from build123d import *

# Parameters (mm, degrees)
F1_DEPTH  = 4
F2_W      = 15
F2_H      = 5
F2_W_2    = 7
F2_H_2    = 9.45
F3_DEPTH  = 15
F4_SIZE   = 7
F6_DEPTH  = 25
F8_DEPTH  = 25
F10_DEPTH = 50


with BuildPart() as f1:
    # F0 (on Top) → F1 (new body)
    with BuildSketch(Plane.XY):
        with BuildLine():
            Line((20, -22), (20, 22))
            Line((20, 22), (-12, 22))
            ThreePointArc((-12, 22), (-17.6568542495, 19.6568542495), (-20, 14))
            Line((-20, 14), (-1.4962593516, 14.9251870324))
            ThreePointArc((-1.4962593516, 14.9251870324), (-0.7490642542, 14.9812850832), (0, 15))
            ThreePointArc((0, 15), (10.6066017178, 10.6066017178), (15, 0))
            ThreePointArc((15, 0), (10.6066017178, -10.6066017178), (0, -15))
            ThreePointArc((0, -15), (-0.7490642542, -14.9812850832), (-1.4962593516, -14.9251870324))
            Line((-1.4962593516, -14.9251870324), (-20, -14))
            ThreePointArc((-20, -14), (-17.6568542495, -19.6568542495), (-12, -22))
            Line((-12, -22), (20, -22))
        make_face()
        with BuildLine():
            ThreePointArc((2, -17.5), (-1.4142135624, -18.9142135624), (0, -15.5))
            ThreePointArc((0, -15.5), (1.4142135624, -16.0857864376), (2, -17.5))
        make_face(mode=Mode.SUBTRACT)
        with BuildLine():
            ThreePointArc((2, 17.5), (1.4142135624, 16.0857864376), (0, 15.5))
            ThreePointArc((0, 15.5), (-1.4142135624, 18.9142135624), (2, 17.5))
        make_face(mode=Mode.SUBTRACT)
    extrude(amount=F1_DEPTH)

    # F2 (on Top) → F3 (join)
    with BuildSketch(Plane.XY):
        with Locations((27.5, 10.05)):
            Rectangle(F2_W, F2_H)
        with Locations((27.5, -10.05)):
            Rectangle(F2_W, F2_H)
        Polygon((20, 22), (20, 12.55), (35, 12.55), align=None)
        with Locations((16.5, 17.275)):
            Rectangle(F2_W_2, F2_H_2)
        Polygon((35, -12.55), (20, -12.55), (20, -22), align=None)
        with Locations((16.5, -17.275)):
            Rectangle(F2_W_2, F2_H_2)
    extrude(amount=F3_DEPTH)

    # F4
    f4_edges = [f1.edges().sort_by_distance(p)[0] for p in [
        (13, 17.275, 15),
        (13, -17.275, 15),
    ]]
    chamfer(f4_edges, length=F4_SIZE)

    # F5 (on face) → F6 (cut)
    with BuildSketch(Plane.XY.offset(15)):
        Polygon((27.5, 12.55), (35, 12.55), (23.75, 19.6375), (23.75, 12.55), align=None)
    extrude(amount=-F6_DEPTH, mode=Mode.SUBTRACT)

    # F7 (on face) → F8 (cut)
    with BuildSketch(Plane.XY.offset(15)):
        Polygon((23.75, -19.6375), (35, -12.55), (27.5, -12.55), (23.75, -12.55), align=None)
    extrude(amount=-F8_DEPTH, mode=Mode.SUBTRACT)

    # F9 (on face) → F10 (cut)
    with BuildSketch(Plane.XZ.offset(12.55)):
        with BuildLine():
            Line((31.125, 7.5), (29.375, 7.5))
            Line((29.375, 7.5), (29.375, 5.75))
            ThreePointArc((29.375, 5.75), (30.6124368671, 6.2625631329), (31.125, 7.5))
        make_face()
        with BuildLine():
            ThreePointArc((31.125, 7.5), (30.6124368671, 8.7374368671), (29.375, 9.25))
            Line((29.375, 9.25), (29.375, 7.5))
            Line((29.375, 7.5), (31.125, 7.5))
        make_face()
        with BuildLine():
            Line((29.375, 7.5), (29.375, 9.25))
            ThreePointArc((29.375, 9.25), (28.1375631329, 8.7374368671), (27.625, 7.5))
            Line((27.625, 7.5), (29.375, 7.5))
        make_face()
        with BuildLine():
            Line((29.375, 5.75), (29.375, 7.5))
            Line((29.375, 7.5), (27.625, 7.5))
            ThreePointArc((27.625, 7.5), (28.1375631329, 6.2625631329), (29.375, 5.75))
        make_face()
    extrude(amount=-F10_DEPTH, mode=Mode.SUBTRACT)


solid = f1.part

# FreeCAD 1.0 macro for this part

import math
import FreeCAD as App
import Part
import Sketcher


def edges_at(feature, points):
    """Names of the edges that pass closest to the given points."""
    edges = feature.Shape.Edges
    near = lambda p: min(range(len(edges)), key=lambda i: edges[i].distToShape(Part.Vertex(*p))[0])
    return sorted({f"Edge{near(p) + 1}" for p in points})

doc = App.newDocument("Part")
body = doc.addObject("PartDesign::Body", "Body")

sketch1 = doc.addObject("Sketcher::SketchObject", "Sketch")
body.addObject(sketch1)
sketch1.AttachmentSupport = (doc.XY_Plane, [""])
sketch1.MapMode = "FlatFace"
sketch1.addGeometry([
    Part.LineSegment(App.Vector(20, -22, 0), App.Vector(20, 22, 0)),
    Part.LineSegment(App.Vector(20, 22, 0), App.Vector(-12, 22, 0)),
    Part.ArcOfCircle(Part.Circle(App.Vector(-12, 14, 0), App.Vector(0, 0, 1), 8), math.radians(90), math.radians(180)),
    Part.LineSegment(App.Vector(-20, 14, 0), App.Vector(-1.5, 14.9, 0)),
    Part.ArcOfCircle(Part.Circle(App.Vector(0, 0, 0), App.Vector(0, 0, 1), 15), math.radians(90), math.radians(95.72)),
    Part.ArcOfCircle(Part.Circle(App.Vector(0, 0, 0), App.Vector(0, 0, 1), 15), math.radians(-90), math.radians(90)),
    Part.ArcOfCircle(Part.Circle(App.Vector(0, 0, 0), App.Vector(0, 0, 1), 15), math.radians(-95.72), math.radians(-90)),
    Part.LineSegment(App.Vector(-1.5, -14.9, 0), App.Vector(-20, -14, 0)),
    Part.ArcOfCircle(Part.Circle(App.Vector(-12, -14, 0), App.Vector(0, 0, 1), 8), math.radians(180), math.radians(270)),
    Part.LineSegment(App.Vector(-12, -22, 0), App.Vector(20, -22, 0)),
    Part.ArcOfCircle(Part.Circle(App.Vector(0, -17.5, 0), App.Vector(0, 0, 1), 2), math.radians(0), math.radians(90)),
    Part.ArcOfCircle(Part.Circle(App.Vector(0, -17.5, 0), App.Vector(0, 0, 1), 2), math.radians(90), math.radians(360)),
    Part.ArcOfCircle(Part.Circle(App.Vector(0, 17.5, 0), App.Vector(0, 0, 1), 2), math.radians(0), math.radians(270)),
    Part.ArcOfCircle(Part.Circle(App.Vector(0, 17.5, 0), App.Vector(0, 0, 1), 2), math.radians(-90), math.radians(0)),
], False)
sketch1.addConstraint([
    Sketcher.Constraint("Coincident", 0, 2, 1, 1),
    Sketcher.Constraint("Tangent", 1, 2, 2, 1),
    Sketcher.Constraint("Coincident", 2, 2, 3, 1),
    Sketcher.Constraint("Coincident", 3, 2, 4, 2),
    Sketcher.Constraint("Tangent", 4, 1, 5, 2),
    Sketcher.Constraint("Tangent", 5, 1, 6, 2),
    Sketcher.Constraint("Coincident", 6, 1, 7, 1),
    Sketcher.Constraint("Coincident", 7, 2, 8, 1),
    Sketcher.Constraint("Tangent", 8, 2, 9, 1),
    Sketcher.Constraint("Coincident", 9, 2, 0, 1),
    Sketcher.Constraint("Tangent", 10, 1, 11, 2),
    Sketcher.Constraint("Coincident", 11, 1, 10, 2),
    Sketcher.Constraint("Tangent", 12, 1, 13, 2),
    Sketcher.Constraint("Coincident", 13, 1, 12, 2),
    Sketcher.Constraint("Vertical", 0),
    Sketcher.Constraint("Horizontal", 1),
    Sketcher.Constraint("Horizontal", 9),
    Sketcher.Constraint("Coincident", 4, 3, -1, 1),
    Sketcher.Constraint("Equal", 4, 5),
    Sketcher.Constraint("Equal", 5, 6),
    Sketcher.Constraint("Equal", 2, 8),
    Sketcher.Constraint("Equal", 11, 12),
    Sketcher.Constraint("Symmetric", 10, 3, 12, 3, -1, 1),
    Sketcher.Constraint("Symmetric", 2, 3, 8, 3, -1),
    Sketcher.Constraint("Symmetric", 10, 1, 12, 1, -1),
    Sketcher.Constraint("PointOnObject", 4, 1, -2),
    Sketcher.Constraint("PointOnObject", 5, 1, -2),
    Sketcher.Constraint("PointOnObject", 11, 1, -2),
    Sketcher.Constraint("PointOnObject", 13, 1, -2),
    Sketcher.Constraint("Horizontal", 8, 3, 7, 2),
    Sketcher.Constraint("Horizontal", 11, 3, 10, 1),
    Sketcher.Constraint("Vertical", 3, 2, 6, 1),
    Sketcher.Constraint("Equal", 3, 7),
    Sketcher.Constraint("Radius", 2, 8.0),
    Sketcher.Constraint("Radius", 4, 15.0),
    Sketcher.Constraint("Radius", 10, 2.0),
    Sketcher.Constraint("DistanceX", 1, 2, 1, 1, 32.0),
    Sketcher.Constraint("DistanceY", 0, 1, 0, 2, 44.0),
    Sketcher.Constraint("DistanceX", 2, 3, -1, 1, 12.0),
    Sketcher.Constraint("DistanceY", 10, 3, -1, 1, 17.5),
    Sketcher.Constraint("DistanceX", 3, 2, -1, 1, 1.496259),
])
pad1 = doc.addObject("PartDesign::Pad", "Pad")
body.addObject(pad1)
pad1.Profile = sketch1
pad1.Length = 4

sketch2 = doc.addObject("Sketcher::SketchObject", "Sketch001")
body.addObject(sketch2)
sketch2.AttachmentSupport = (doc.XY_Plane, [""])
sketch2.MapMode = "FlatFace"
sketch2.addGeometry([
    Part.LineSegment(App.Vector(20, 8, 0), App.Vector(35, 8, 0)),
    Part.LineSegment(App.Vector(35, 8, 0), App.Vector(35, 13, 0)),
    Part.LineSegment(App.Vector(35, 13, 0), App.Vector(20, 22, 0)),
    Part.LineSegment(App.Vector(20, 22, 0), App.Vector(13, 22, 0)),
    Part.LineSegment(App.Vector(13, 22, 0), App.Vector(13, 13, 0)),
    Part.LineSegment(App.Vector(13, 13, 0), App.Vector(20, 13, 0)),
    Part.LineSegment(App.Vector(20, 13, 0), App.Vector(20, 8, 0)),
    Part.LineSegment(App.Vector(20, -8, 0), App.Vector(20, -13, 0)),
    Part.LineSegment(App.Vector(20, -13, 0), App.Vector(13, -13, 0)),
    Part.LineSegment(App.Vector(13, -13, 0), App.Vector(13, -22, 0)),
    Part.LineSegment(App.Vector(13, -22, 0), App.Vector(20, -22, 0)),
    Part.LineSegment(App.Vector(20, -22, 0), App.Vector(35, -13, 0)),
    Part.LineSegment(App.Vector(35, -13, 0), App.Vector(35, -8, 0)),
    Part.LineSegment(App.Vector(35, -8, 0), App.Vector(20, -8, 0)),
], False)
sketch2.addConstraint([
    Sketcher.Constraint("Coincident", 0, 2, 1, 1),
    Sketcher.Constraint("Coincident", 1, 2, 2, 1),
    Sketcher.Constraint("Coincident", 2, 2, 3, 1),
    Sketcher.Constraint("Coincident", 3, 2, 4, 1),
    Sketcher.Constraint("Coincident", 4, 2, 5, 1),
    Sketcher.Constraint("Coincident", 5, 2, 6, 1),
    Sketcher.Constraint("Coincident", 6, 2, 0, 1),
    Sketcher.Constraint("Coincident", 7, 2, 8, 1),
    Sketcher.Constraint("Coincident", 8, 2, 9, 1),
    Sketcher.Constraint("Coincident", 9, 2, 10, 1),
    Sketcher.Constraint("Coincident", 10, 2, 11, 1),
    Sketcher.Constraint("Coincident", 11, 2, 12, 1),
    Sketcher.Constraint("Coincident", 12, 2, 13, 1),
    Sketcher.Constraint("Coincident", 13, 2, 7, 1),
    Sketcher.Constraint("Horizontal", 0),
    Sketcher.Constraint("Vertical", 1),
    Sketcher.Constraint("Horizontal", 3),
    Sketcher.Constraint("Vertical", 4),
    Sketcher.Constraint("Horizontal", 5),
    Sketcher.Constraint("Vertical", 6),
    Sketcher.Constraint("Vertical", 7),
    Sketcher.Constraint("Horizontal", 8),
    Sketcher.Constraint("Vertical", 9),
    Sketcher.Constraint("Horizontal", 10),
    Sketcher.Constraint("Vertical", 12),
    Sketcher.Constraint("Horizontal", 13),
    Sketcher.Constraint("Symmetric", 5, 2, 7, 2, -1),
    Sketcher.Constraint("Symmetric", 3, 2, 9, 2, -1),
    Sketcher.Constraint("Symmetric", 1, 2, 11, 2, -1),
    Sketcher.Constraint("Horizontal", 1, 2, 4, 2),
    Sketcher.Constraint("Vertical", 2, 2, 5, 2),
    Sketcher.Constraint("Vertical", 7, 2, 10, 2),
    Sketcher.Constraint("Equal", 6, 7),
    Sketcher.Constraint("DistanceX", 0, 1, 0, 2, 15.0),
    Sketcher.Constraint("DistanceX", 3, 2, 3, 1, 7.0),
    Sketcher.Constraint("DistanceY", 1, 1, 1, 2, 5.0),
    Sketcher.Constraint("DistanceX", -1, 1, 0, 2, 35.0),
    Sketcher.Constraint("DistanceY", -1, 1, 2, 2, 22.0),
    Sketcher.Constraint("DistanceY", 4, 2, 4, 1, 9.45),
])
pad2 = doc.addObject("PartDesign::Pad", "Pad001")
body.addObject(pad2)
pad2.Profile = sketch2
pad2.Length = 15
doc.recompute()

chamfer = doc.addObject("PartDesign::Chamfer", "Chamfer")
body.addObject(chamfer)
chamfer.Base = (pad2, edges_at(pad2, [(13, 17.275, 15), (13, -17.275, 15)]))
chamfer.Size = 7

sketch3 = doc.addObject("Sketcher::SketchObject", "Sketch002")
body.addObject(sketch3)
sketch3.AttachmentSupport = (doc.XY_Plane, [""])
sketch3.MapMode = "FlatFace"
sketch3.AttachmentOffset = App.Placement(App.Vector(0, 0, 15), App.Rotation())
sketch3.addGeometry([
    Part.LineSegment(App.Vector(35, 13, 0), App.Vector(24, 20, 0)),
    Part.LineSegment(App.Vector(24, 20, 0), App.Vector(24, 13, 0)),
    Part.LineSegment(App.Vector(24, 13, 0), App.Vector(35, 13, 0)),
], False)
sketch3.addConstraint([
    Sketcher.Constraint("Coincident", 0, 2, 1, 1),
    Sketcher.Constraint("Coincident", 1, 2, 2, 1),
    Sketcher.Constraint("Coincident", 2, 2, 0, 1),
    Sketcher.Constraint("Vertical", 1),
    Sketcher.Constraint("Horizontal", 2),
    Sketcher.Constraint("DistanceX", -1, 1, 2, 2, 35.0),
    Sketcher.Constraint("DistanceX", 2, 1, 2, 2, 11.25),
    Sketcher.Constraint("DistanceY", -1, 1, 1, 2, 12.55),
    Sketcher.Constraint("DistanceY", 1, 2, 1, 1, 7.0875),
])
pocket1 = doc.addObject("PartDesign::Pocket", "Pocket")
body.addObject(pocket1)
pocket1.Profile = sketch3
pocket1.Length = 25

sketch4 = doc.addObject("Sketcher::SketchObject", "Sketch003")
body.addObject(sketch4)
sketch4.AttachmentSupport = (doc.XY_Plane, [""])
sketch4.MapMode = "FlatFace"
sketch4.AttachmentOffset = App.Placement(App.Vector(0, 0, 15), App.Rotation())
sketch4.addGeometry([
    Part.LineSegment(App.Vector(24, -20, 0), App.Vector(35, -13, 0)),
    Part.LineSegment(App.Vector(35, -13, 0), App.Vector(24, -13, 0)),
    Part.LineSegment(App.Vector(24, -13, 0), App.Vector(24, -20, 0)),
], False)
sketch4.addConstraint([
    Sketcher.Constraint("Coincident", 0, 2, 1, 1),
    Sketcher.Constraint("Coincident", 1, 2, 2, 1),
    Sketcher.Constraint("Coincident", 2, 2, 0, 1),
    Sketcher.Constraint("Horizontal", 1),
    Sketcher.Constraint("Vertical", 2),
    Sketcher.Constraint("DistanceX", -1, 1, 0, 2, 35.0),
    Sketcher.Constraint("DistanceX", 1, 2, 1, 1, 11.25),
    Sketcher.Constraint("DistanceY", 0, 2, -1, 1, 12.55),
    Sketcher.Constraint("DistanceY", 2, 2, 2, 1, 7.0875),
])
pocket2 = doc.addObject("PartDesign::Pocket", "Pocket001")
body.addObject(pocket2)
pocket2.Profile = sketch4
pocket2.Length = 25

sketch5 = doc.addObject("Sketcher::SketchObject", "Sketch004")
body.addObject(sketch5)
sketch5.AttachmentSupport = (doc.XZ_Plane, [""])
sketch5.MapMode = "FlatFace"
sketch5.AttachmentOffset = App.Placement(App.Vector(0, 0, 12.55), App.Rotation())
sketch5.addGeometry([
    Part.ArcOfCircle(Part.Circle(App.Vector(29.4, 7.5, 0), App.Vector(0, 0, 1), 1.8), math.radians(-90), math.radians(0)),
    Part.ArcOfCircle(Part.Circle(App.Vector(29.4, 7.5, 0), App.Vector(0, 0, 1), 1.8), math.radians(0), math.radians(90)),
    Part.ArcOfCircle(Part.Circle(App.Vector(29.4, 7.5, 0), App.Vector(0, 0, 1), 1.8), math.radians(90), math.radians(180)),
    Part.ArcOfCircle(Part.Circle(App.Vector(29.4, 7.5, 0), App.Vector(0, 0, 1), 1.8), math.radians(180), math.radians(270)),
], False)
sketch5.addConstraint([
    Sketcher.Constraint("Tangent", 0, 2, 1, 1),
    Sketcher.Constraint("Tangent", 1, 2, 2, 1),
    Sketcher.Constraint("Tangent", 2, 2, 3, 1),
    Sketcher.Constraint("Tangent", 3, 2, 0, 1),
    Sketcher.Constraint("Equal", 0, 1),
    Sketcher.Constraint("Horizontal", 3, 3, 0, 2),
    Sketcher.Constraint("Horizontal", 0, 2, 2, 2),
    Sketcher.Constraint("Vertical", 3, 3, 1, 2),
    Sketcher.Constraint("Vertical", 1, 2, 3, 2),
    Sketcher.Constraint("Radius", 0, 1.75),
    Sketcher.Constraint("DistanceY", -1, 1, 0, 3, 7.5),
    Sketcher.Constraint("DistanceX", -1, 1, 0, 3, 29.375),
])
pocket3 = doc.addObject("PartDesign::Pocket", "Pocket002")
body.addObject(pocket3)
pocket3.Profile = sketch5
pocket3.Length = 50

doc.recompute()
